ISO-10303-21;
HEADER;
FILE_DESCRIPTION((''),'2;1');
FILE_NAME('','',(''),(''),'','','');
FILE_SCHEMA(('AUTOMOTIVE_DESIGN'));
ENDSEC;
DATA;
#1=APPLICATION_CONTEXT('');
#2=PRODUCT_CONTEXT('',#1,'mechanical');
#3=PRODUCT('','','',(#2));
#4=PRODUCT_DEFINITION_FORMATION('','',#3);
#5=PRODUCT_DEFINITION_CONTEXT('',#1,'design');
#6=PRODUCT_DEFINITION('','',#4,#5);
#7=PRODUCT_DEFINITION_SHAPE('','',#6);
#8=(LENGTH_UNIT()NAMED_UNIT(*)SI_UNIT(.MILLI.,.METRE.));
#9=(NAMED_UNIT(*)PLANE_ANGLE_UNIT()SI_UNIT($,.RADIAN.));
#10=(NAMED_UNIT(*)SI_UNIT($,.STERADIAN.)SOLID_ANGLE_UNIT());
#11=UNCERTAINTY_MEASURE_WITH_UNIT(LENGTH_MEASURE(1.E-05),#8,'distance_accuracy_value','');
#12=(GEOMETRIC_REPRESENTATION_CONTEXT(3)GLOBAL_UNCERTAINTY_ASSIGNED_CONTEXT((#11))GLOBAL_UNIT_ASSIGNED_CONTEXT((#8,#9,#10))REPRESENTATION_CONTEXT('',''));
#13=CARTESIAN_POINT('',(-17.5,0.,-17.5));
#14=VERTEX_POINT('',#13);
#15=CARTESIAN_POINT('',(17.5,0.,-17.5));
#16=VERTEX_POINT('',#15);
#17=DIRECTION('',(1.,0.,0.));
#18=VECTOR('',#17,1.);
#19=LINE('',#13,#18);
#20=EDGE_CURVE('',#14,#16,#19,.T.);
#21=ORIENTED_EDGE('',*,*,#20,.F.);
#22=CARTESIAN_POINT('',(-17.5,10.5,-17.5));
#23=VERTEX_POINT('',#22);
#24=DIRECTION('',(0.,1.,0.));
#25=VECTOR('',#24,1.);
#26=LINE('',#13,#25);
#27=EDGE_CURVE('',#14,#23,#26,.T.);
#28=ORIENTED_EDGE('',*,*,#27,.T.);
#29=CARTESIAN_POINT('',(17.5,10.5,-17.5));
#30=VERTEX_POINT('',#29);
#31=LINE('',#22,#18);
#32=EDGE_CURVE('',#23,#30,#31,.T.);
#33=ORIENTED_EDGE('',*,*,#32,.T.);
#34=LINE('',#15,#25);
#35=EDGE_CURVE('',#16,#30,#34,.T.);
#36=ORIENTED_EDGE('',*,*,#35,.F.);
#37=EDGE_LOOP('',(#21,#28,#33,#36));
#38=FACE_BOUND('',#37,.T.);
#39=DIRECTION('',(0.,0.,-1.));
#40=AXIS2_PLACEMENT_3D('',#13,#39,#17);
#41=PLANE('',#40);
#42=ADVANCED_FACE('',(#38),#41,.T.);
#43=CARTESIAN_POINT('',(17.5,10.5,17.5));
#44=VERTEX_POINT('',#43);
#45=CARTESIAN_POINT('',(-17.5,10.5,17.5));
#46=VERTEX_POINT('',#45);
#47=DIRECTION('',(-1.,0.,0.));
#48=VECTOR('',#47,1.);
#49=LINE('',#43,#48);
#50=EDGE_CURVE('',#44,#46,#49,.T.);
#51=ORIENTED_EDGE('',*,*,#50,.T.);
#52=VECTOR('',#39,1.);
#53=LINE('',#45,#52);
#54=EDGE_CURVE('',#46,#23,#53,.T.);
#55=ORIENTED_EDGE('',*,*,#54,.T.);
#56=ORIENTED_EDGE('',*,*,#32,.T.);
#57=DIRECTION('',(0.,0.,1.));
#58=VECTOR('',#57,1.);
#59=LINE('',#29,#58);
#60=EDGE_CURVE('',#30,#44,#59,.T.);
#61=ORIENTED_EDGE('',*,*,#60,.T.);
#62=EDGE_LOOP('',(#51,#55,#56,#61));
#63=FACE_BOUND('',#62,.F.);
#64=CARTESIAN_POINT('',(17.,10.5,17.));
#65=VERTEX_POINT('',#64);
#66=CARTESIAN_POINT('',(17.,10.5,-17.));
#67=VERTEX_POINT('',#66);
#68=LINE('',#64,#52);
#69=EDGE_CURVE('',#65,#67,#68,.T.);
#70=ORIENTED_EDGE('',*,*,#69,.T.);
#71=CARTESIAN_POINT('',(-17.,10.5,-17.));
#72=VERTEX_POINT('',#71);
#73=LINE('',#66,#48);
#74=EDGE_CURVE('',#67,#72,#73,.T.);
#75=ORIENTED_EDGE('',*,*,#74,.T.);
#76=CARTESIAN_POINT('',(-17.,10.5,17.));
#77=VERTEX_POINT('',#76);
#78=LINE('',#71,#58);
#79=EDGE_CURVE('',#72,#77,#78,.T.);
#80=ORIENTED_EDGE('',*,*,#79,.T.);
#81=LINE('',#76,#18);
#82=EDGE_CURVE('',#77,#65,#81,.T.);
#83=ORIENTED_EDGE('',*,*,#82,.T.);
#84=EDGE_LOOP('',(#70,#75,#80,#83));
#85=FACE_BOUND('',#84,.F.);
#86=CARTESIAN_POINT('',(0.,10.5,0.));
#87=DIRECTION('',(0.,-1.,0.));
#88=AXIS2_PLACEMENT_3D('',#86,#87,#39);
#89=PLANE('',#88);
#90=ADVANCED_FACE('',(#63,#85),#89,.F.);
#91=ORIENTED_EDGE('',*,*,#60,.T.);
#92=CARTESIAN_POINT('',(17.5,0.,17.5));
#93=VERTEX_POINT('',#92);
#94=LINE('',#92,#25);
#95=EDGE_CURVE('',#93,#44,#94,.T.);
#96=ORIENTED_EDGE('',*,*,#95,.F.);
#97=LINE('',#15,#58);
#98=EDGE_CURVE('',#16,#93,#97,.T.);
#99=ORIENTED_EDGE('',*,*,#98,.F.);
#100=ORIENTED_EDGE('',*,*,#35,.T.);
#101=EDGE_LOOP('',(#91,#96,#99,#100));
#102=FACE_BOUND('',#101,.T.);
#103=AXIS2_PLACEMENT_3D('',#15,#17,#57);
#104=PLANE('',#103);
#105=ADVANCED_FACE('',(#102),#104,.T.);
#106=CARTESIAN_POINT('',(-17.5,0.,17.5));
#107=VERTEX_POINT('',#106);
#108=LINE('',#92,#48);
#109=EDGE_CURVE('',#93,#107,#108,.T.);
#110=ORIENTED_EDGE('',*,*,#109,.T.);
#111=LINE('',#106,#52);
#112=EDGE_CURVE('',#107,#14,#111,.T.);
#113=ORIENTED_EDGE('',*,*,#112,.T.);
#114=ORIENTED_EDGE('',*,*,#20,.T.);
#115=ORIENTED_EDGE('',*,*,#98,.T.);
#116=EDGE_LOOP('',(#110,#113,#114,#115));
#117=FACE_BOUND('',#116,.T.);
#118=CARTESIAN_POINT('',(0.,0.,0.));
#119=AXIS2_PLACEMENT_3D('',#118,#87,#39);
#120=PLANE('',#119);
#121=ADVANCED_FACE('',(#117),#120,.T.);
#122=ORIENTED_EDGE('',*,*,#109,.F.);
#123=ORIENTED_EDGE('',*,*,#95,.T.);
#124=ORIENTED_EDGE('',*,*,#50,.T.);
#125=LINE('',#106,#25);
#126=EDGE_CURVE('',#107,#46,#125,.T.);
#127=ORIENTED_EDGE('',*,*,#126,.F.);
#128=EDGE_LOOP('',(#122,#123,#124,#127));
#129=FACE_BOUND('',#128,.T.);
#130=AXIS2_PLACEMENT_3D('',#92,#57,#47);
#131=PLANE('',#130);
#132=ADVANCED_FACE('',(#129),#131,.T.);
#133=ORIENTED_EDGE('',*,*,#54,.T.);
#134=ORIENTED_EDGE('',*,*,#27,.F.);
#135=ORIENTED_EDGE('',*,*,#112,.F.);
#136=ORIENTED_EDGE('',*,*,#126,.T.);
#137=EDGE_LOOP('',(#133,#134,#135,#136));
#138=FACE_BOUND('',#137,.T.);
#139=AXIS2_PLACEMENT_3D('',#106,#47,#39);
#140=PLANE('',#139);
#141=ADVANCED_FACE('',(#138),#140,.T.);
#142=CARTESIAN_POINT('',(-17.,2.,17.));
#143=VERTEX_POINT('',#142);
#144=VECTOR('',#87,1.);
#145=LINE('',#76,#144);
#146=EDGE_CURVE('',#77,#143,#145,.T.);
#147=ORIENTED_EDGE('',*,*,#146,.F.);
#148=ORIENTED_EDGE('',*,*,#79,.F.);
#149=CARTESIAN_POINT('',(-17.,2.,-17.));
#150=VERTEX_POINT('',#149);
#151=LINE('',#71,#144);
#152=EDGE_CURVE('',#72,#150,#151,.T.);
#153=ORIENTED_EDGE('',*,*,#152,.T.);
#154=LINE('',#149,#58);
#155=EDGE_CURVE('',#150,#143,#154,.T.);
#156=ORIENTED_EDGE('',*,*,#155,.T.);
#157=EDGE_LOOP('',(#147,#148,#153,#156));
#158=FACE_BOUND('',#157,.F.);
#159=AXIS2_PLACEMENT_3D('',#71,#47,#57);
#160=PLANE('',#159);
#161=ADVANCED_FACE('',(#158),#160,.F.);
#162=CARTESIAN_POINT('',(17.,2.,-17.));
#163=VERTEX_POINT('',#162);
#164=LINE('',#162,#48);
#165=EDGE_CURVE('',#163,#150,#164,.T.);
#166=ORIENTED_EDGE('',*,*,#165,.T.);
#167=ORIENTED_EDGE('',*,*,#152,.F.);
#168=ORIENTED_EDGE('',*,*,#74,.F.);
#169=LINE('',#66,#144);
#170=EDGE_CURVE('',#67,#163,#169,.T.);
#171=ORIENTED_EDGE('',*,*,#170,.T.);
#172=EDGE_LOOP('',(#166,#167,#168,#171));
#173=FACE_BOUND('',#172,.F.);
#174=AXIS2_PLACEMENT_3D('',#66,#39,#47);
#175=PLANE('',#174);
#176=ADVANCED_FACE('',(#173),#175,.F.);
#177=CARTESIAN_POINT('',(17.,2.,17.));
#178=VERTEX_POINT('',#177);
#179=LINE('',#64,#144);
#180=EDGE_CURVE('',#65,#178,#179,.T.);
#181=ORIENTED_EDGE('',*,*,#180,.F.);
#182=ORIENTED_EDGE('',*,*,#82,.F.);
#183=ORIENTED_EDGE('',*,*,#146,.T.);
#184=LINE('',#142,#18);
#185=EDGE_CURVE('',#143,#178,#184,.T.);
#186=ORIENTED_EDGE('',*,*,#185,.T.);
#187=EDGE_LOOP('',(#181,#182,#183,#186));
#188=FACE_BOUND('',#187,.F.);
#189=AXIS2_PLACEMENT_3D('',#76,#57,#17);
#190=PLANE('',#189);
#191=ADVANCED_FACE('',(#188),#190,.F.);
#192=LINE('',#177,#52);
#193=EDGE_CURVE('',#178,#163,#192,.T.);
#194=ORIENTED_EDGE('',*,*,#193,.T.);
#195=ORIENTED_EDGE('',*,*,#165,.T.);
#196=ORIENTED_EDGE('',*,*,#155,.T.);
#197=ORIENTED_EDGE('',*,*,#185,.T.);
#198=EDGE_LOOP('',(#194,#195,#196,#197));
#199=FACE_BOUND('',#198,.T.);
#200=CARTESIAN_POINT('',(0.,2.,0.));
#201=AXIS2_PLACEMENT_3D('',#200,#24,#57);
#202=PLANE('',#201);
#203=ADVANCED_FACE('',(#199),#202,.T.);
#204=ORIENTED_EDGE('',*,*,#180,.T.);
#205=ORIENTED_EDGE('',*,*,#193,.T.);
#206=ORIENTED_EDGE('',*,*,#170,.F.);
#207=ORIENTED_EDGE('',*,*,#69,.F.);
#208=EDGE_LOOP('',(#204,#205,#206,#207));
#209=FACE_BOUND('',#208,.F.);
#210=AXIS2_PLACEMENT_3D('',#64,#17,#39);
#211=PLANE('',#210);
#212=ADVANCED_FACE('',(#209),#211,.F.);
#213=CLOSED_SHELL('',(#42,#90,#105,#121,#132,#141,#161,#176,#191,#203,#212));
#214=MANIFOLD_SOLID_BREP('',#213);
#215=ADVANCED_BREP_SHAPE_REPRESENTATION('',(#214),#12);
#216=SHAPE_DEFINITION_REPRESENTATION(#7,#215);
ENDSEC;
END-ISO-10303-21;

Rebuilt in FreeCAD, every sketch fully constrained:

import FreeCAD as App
import Part
import Sketcher
Q = App.Units.Quantity


def add_polygon(sketch, points):
    """Adds a closed chain of lines whose ends are joined by coincident constraints."""
    first, n = sketch.GeometryCount, len(points)
    for a, b in zip(points, points[1:] + points[:1]):
        sketch.addGeometry(Part.LineSegment(App.Vector(*a, 0), App.Vector(*b, 0)), False)
    for i in range(n):
        sketch.addConstraint(Sketcher.Constraint("Coincident", first + i, 2, first + (i + 1) % n, 1))

doc = App.newDocument("Part")
params = doc.addObject("Spreadsheet::Sheet", "Params")
for row, (alias, value) in enumerate([
    ("sketch1_width", "35 mm"),
    ("pad1_length", "10.5 mm"),
    ("sketch2_width", "34 mm"),
    ("pocket1_length", "8.5 mm"),
], start=1):
    params.set(f"A{row}", alias)
    params.set(f"B{row}", "=" + value)
    params.setAlias(f"B{row}", alias)

body = doc.addObject("PartDesign::Body", "Body")

sketch1 = doc.addObject("Sketcher::SketchObject", "Sketch")
body.addObject(sketch1)
sketch1.AttachmentSupport = (doc.XZ_Plane, [""])
sketch1.MapMode = "FlatFace"
add_polygon(sketch1, [(-17.5, 17.5), (-17.5, -17.5), (17.5, -17.5), (17.5, 17.5)])
sketch1.addConstraint(Sketcher.Constraint("Vertical", 0))
sketch1.addConstraint(Sketcher.Constraint("Horizontal", 1))
sketch1.addConstraint(Sketcher.Constraint("Vertical", 2))
sketch1.addConstraint(Sketcher.Constraint("Horizontal", 3))
sketch1.addConstraint(Sketcher.Constraint("Symmetric", 0, 2, 2, 2, -1, 1))
sketch1.addConstraint(Sketcher.Constraint("Equal", 3, 0))
sketch1.addConstraint(Sketcher.Constraint("DistanceX", 1, 1, 1, 2, Q("35 mm")))
sketch1.setExpression("Constraints[10]", "Params.sketch1_width")
pad1 = doc.addObject("PartDesign::Pad", "Pad")
body.addObject(pad1)
pad1.Profile = sketch1
pad1.setExpression("Length", "Params.pad1_length")
pad1.Reversed = True

sketch2 = doc.addObject("Sketcher::SketchObject", "Sketch001")
body.addObject(sketch2)
sketch2.AttachmentSupport = (doc.XZ_Plane, [""])
sketch2.MapMode = "FlatFace"
sketch2.AttachmentOffset = App.Placement(App.Vector(0, 0, -10.5), App.Rotation())
add_polygon(sketch2, [(17, 17), (17, -17), (-17, -17), (-17, 17)])
sketch2.addConstraint(Sketcher.Constraint("Vertical", 0))
sketch2.addConstraint(Sketcher.Constraint("Horizontal", 1))
sketch2.addConstraint(Sketcher.Constraint("Vertical", 2))
sketch2.addConstraint(Sketcher.Constraint("Horizontal", 3))
sketch2.addConstraint(Sketcher.Constraint("Symmetric", 0, 2, 2, 2, -1, 1))
sketch2.addConstraint(Sketcher.Constraint("Equal", 3, 0))
sketch2.addConstraint(Sketcher.Constraint("DistanceX", 1, 2, 1, 1, Q("34 mm")))
sketch2.setExpression("Constraints[10]", "Params.sketch2_width")
pocket1 = doc.addObject("PartDesign::Pocket", "Pocket")
body.addObject(pocket1)
pocket1.Profile = sketch2
pocket1.setExpression("Length", "Params.pocket1_length")
pocket1.Reversed = True

doc.recompute()
